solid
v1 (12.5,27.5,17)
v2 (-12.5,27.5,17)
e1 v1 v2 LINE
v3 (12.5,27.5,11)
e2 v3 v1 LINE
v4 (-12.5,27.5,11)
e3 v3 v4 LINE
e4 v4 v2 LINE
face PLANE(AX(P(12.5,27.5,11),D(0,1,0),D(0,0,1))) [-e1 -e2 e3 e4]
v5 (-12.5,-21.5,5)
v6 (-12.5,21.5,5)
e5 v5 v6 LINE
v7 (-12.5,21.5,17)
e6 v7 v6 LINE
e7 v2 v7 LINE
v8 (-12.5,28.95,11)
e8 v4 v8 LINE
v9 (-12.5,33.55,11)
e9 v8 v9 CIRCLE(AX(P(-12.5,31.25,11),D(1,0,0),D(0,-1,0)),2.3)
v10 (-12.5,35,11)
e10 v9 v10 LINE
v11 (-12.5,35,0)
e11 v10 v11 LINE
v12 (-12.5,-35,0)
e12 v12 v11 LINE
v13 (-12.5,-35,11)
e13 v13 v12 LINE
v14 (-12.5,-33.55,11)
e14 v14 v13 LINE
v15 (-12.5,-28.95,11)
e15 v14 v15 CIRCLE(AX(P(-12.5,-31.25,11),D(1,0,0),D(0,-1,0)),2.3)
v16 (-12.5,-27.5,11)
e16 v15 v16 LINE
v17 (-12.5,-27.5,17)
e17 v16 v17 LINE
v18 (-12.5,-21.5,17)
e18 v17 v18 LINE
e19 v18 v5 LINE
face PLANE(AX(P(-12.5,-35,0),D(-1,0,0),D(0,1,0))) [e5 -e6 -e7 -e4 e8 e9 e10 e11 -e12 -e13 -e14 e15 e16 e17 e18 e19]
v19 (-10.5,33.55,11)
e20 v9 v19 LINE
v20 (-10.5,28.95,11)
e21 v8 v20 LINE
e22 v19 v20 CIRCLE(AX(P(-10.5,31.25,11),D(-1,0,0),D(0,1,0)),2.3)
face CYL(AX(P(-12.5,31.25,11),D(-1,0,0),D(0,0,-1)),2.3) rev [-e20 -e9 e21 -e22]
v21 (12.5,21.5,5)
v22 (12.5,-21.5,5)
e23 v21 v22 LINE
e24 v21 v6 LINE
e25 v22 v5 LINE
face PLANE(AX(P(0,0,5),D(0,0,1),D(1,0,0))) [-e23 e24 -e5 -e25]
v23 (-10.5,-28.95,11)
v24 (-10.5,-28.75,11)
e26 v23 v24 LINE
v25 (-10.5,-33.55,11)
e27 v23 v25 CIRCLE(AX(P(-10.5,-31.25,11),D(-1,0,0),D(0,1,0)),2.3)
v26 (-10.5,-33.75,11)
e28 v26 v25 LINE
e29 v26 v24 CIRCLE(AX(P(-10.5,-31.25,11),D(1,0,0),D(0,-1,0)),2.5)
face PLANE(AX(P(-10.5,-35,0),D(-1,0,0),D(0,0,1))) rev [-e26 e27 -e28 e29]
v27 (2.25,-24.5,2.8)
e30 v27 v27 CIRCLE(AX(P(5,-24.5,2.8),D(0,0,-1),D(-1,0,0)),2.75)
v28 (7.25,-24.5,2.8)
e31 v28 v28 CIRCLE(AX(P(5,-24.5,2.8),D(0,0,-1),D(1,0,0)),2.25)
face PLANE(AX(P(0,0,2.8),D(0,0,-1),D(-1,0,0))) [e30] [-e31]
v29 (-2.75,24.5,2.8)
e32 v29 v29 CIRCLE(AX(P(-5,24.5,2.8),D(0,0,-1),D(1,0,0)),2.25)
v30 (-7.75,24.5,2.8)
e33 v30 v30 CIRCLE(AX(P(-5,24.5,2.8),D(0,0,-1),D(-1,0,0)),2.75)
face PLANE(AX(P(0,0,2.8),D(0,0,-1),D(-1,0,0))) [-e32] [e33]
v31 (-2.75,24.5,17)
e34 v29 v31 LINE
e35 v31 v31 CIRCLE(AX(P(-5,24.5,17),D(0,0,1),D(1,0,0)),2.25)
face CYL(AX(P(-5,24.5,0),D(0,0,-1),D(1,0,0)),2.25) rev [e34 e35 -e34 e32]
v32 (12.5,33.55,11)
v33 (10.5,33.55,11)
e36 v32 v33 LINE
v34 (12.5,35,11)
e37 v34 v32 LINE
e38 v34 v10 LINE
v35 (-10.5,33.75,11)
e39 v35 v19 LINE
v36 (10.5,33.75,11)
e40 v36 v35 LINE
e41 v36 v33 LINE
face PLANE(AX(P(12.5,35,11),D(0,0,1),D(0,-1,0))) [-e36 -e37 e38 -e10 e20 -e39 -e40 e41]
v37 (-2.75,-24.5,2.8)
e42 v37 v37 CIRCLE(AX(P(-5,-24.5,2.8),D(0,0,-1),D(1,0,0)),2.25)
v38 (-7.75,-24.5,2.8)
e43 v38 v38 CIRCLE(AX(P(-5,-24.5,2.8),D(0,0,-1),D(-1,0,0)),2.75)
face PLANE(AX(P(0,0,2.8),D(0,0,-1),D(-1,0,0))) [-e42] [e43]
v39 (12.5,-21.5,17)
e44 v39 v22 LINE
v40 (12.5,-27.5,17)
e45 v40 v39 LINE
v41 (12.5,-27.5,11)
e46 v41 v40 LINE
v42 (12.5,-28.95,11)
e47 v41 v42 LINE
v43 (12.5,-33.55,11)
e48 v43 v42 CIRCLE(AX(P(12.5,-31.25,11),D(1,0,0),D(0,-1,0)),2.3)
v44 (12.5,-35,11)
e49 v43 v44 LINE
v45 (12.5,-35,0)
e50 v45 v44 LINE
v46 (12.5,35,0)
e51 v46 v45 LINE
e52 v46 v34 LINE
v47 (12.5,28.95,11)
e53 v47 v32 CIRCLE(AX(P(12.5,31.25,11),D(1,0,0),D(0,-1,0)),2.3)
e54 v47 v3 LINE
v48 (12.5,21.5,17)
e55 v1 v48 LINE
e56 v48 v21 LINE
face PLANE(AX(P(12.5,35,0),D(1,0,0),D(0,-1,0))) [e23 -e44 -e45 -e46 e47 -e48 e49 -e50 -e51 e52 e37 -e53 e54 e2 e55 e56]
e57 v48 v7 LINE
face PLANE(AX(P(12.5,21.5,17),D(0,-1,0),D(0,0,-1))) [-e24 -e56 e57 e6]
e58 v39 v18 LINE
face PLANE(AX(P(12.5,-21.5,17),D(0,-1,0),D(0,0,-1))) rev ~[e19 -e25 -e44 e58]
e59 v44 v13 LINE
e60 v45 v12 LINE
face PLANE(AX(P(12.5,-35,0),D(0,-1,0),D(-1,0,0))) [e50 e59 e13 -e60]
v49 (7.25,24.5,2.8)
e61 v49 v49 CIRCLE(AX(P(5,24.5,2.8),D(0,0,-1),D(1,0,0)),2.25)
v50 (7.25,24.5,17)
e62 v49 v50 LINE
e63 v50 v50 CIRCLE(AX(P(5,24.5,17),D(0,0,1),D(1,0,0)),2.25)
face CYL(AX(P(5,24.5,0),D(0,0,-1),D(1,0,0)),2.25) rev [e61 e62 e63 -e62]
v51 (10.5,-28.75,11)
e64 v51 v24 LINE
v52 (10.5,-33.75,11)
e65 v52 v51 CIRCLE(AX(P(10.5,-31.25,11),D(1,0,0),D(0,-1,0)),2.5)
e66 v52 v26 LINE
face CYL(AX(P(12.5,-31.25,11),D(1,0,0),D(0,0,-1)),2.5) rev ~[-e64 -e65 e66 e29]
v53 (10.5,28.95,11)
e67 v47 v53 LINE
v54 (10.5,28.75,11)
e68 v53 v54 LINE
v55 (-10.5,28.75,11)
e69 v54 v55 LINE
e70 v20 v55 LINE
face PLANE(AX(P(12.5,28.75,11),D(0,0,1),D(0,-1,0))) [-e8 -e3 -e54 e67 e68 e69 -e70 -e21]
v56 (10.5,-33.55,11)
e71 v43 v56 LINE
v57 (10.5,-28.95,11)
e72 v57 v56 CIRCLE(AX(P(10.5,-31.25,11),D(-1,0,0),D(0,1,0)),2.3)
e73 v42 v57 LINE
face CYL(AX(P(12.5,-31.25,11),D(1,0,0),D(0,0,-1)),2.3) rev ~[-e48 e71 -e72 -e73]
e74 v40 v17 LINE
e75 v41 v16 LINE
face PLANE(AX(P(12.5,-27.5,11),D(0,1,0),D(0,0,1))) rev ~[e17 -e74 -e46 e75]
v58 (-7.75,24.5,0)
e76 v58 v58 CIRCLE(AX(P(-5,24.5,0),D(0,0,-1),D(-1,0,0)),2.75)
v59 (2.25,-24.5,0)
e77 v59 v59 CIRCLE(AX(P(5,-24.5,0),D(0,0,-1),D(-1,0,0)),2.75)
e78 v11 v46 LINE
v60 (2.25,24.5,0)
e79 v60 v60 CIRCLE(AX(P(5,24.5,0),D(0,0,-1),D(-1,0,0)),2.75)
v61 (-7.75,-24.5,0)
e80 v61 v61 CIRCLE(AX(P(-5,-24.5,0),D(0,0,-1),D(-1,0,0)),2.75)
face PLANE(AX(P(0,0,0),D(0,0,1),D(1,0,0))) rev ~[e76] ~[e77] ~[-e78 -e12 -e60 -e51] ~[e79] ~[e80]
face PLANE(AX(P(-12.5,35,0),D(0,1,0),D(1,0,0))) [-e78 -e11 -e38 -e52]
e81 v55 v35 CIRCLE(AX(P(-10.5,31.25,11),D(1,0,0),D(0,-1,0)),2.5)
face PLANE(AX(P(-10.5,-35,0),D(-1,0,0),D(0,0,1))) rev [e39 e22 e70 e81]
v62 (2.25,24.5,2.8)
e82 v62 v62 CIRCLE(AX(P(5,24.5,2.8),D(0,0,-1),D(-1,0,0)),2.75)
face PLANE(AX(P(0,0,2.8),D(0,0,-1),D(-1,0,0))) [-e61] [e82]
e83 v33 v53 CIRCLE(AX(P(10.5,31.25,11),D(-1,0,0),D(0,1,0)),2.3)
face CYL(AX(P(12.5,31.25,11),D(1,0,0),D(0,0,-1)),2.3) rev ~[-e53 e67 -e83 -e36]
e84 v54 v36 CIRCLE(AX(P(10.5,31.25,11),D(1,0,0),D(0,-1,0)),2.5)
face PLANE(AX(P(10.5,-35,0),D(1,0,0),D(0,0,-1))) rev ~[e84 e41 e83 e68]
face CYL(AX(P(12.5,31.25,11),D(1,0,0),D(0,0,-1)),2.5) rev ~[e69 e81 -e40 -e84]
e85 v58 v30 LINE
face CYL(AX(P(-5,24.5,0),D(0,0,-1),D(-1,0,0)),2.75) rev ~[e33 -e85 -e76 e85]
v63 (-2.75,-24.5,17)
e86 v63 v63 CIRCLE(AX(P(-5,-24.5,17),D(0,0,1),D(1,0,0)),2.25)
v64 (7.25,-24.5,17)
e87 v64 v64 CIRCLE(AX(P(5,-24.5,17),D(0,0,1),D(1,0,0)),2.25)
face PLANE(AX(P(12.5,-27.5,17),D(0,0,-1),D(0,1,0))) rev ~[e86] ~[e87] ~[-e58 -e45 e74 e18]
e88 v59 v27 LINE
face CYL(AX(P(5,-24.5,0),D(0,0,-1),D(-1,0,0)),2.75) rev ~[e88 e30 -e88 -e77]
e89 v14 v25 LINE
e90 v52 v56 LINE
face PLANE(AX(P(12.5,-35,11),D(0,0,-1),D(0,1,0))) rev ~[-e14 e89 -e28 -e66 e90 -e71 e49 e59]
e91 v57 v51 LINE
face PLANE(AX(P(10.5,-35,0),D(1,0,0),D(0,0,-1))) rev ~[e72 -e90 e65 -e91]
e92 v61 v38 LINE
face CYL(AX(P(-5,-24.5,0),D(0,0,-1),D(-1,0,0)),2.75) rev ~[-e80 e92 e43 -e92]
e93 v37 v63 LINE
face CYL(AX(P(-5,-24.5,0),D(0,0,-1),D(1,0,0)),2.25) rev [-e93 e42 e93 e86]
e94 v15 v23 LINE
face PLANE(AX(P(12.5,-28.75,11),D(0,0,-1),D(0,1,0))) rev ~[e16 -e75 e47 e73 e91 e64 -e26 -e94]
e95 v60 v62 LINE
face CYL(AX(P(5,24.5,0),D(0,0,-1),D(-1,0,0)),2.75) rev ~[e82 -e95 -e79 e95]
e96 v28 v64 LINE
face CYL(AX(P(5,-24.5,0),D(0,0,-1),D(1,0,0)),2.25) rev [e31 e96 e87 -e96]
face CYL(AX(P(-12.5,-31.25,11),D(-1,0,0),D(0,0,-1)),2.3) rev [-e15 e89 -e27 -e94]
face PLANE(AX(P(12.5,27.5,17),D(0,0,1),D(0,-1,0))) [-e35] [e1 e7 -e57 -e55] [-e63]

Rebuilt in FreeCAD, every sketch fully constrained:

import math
import FreeCAD as App
import Part
import Sketcher

V = App.Vector


def add_polygon(sketch, points):
    """Adds a closed chain of lines whose ends are joined by coincident constraints."""
    first, n = sketch.GeometryCount, len(points)
    for a, b in zip(points, points[1:] + points[:1]):
        sketch.addGeometry(Part.LineSegment(App.Vector(*a, 0), App.Vector(*b, 0)), False)
    for i in range(n):
        sketch.addConstraint(Sketcher.Constraint("Coincident", first + i, 2, first + (i + 1) % n, 1))

doc = App.newDocument("Part")
body = doc.addObject("PartDesign::Body", "Body")

# Sketch on XY plane
sketch1 = doc.addObject("Sketcher::SketchObject", "Sketch")
body.addObject(sketch1)
sketch1.AttachmentSupport = (doc.XY_Plane, [""])
sketch1.MapMode = "FlatFace"
add_polygon(sketch1, [(-12.5, -35), (12.5, -35), (12.5, 35), (-12.5, 35)])  # lines 0-3
sketch1.addGeometry(Part.Circle(V(-5, -24.5, 0), V(0, 0, 1), 2.25), False)  # 4
sketch1.addGeometry(Part.Circle(V(5, -24.5, 0), V(0, 0, 1), 2.25), False)  # 5
sketch1.addGeometry(Part.Circle(V(-5, 24.5, 0), V(0, 0, 1), 2.25), False)  # 6
sketch1.addGeometry(Part.Circle(V(5, 24.5, 0), V(0, 0, 1), 2.25), False)  # 7
sketch1.addConstraint(Sketcher.Constraint("Horizontal", 0))
sketch1.addConstraint(Sketcher.Constraint("Vertical", 1))
sketch1.addConstraint(Sketcher.Constraint("Horizontal", 2))
sketch1.addConstraint(Sketcher.Constraint("Vertical", 3))
sketch1.addConstraint(Sketcher.Constraint("Equal", 4, 5))
sketch1.addConstraint(Sketcher.Constraint("Equal", 5, 6))
sketch1.addConstraint(Sketcher.Constraint("Equal", 6, 7))
sketch1.addConstraint(Sketcher.Constraint("Symmetric", 5, 3, 6, 3, -1, 1))
sketch1.addConstraint(Sketcher.Constraint("Symmetric", 4, 3, 7, 3, -1, 1))
sketch1.addConstraint(Sketcher.Constraint("Symmetric", 0, 2, 2, 2, -1, 1))
sketch1.addConstraint(Sketcher.Constraint("Symmetric", 4, 3, 5, 3, -2))
sketch1.addConstraint(Sketcher.Constraint("Diameter", 4, 4.5))
sketch1.addConstraint(Sketcher.Constraint("DistanceX", 0, 1, 0, 2, 25.0))
sketch1.addConstraint(Sketcher.Constraint("DistanceY", 1, 1, 1, 2, 70.0))
sketch1.addConstraint(Sketcher.Constraint("DistanceX", 4, 3, 5, 3, 10.0))
sketch1.addConstraint(Sketcher.Constraint("DistanceY", 4, 3, 6, 3, 49.0))
pad1 = doc.addObject("PartDesign::Pad", "Pad")
body.addObject(pad1)
pad1.Profile = sketch1
pad1.Length = 5

# Sketch on YZ plane
sketch2 = doc.addObject("Sketcher::SketchObject", "Sketch001")
body.addObject(sketch2)
sketch2.AttachmentSupport = (doc.YZ_Plane, [""])
sketch2.MapMode = "FlatFace"
sketch2.AttachmentOffset = App.Placement(V(0, 0, 12.5), App.Rotation())
sketch2.addGeometry(Part.LineSegment(V(35, 5, 0), V(35, 11, 0)), False)
sketch2.addGeometry(Part.LineSegment(V(35, 11, 0), V(33.75, 11, 0)), False)
sketch2.addGeometry(Part.ArcOfCircle(Part.Circle(V(31.25, 11, 0), V(0, 0, 1), 2.5), math.radians(180), math.radians(360)), False)
sketch2.addGeometry(Part.LineSegment(V(28.75, 11, 0), V(27.5, 11, 0)), False)
sketch2.addGeometry(Part.LineSegment(V(27.5, 11, 0), V(27.5, 17, 0)), False)
sketch2.addGeometry(Part.LineSegment(V(27.5, 17, 0), V(21.5, 17, 0)), False)
sketch2.addGeometry(Part.LineSegment(V(21.5, 17, 0), V(21.5, 5, 0)), False)
sketch2.addGeometry(Part.LineSegment(V(21.5, 5, 0), V(35, 5, 0)), False)
sketch2.addGeometry(Part.LineSegment(V(-35, 11, 0), V(-35, 5, 0)), False)
sketch2.addGeometry(Part.LineSegment(V(-35, 5, 0), V(-21.5, 5, 0)), False)
sketch2.addGeometry(Part.LineSegment(V(-21.5, 5, 0), V(-21.5, 17, 0)), False)
sketch2.addGeometry(Part.LineSegment(V(-21.5, 17, 0), V(-27.5, 17, 0)), False)
sketch2.addGeometry(Part.LineSegment(V(-27.5, 17, 0), V(-27.5, 11, 0)), False)
sketch2.addGeometry(Part.LineSegment(V(-27.5, 11, 0), V(-28.75, 11, 0)), False)
sketch2.addGeometry(Part.ArcOfCircle(Part.Circle(V(-31.25, 11, 0), V(0, 0, 1), 2.5), math.radians(180), math.radians(360)), False)
sketch2.addGeometry(Part.LineSegment(V(-33.75, 11, 0), V(-35, 11, 0)), False)
sketch2.addConstraint(Sketcher.Constraint("Coincident", 0, 2, 1, 1))
sketch2.addConstraint(Sketcher.Constraint("Coincident", 1, 2, 2, 2))
sketch2.addConstraint(Sketcher.Constraint("Coincident", 2, 1, 3, 1))
sketch2.addConstraint(Sketcher.Constraint("Coincident", 3, 2, 4, 1))
sketch2.addConstraint(Sketcher.Constraint("Coincident", 4, 2, 5, 1))
sketch2.addConstraint(Sketcher.Constraint("Coincident", 5, 2, 6, 1))
sketch2.addConstraint(Sketcher.Constraint("Coincident", 6, 2, 7, 1))
sketch2.addConstraint(Sketcher.Constraint("Coincident", 7, 2, 0, 1))
sketch2.addConstraint(Sketcher.Constraint("Coincident", 8, 2, 9, 1))
sketch2.addConstraint(Sketcher.Constraint("Coincident", 9, 2, 10, 1))
sketch2.addConstraint(Sketcher.Constraint("Coincident", 10, 2, 11, 1))
sketch2.addConstraint(Sketcher.Constraint("Coincident", 11, 2, 12, 1))
sketch2.addConstraint(Sketcher.Constraint("Coincident", 12, 2, 13, 1))
sketch2.addConstraint(Sketcher.Constraint("Coincident", 13, 2, 14, 2))
sketch2.addConstraint(Sketcher.Constraint("Coincident", 14, 1, 15, 1))
sketch2.addConstraint(Sketcher.Constraint("Coincident", 15, 2, 8, 1))
sketch2.addConstraint(Sketcher.Constraint("Vertical", 0))
sketch2.addConstraint(Sketcher.Constraint("Horizontal", 1))
sketch2.addConstraint(Sketcher.Constraint("Horizontal", 3))
sketch2.addConstraint(Sketcher.Constraint("Vertical", 4))
sketch2.addConstraint(Sketcher.Constraint("Horizontal", 5))
sketch2.addConstraint(Sketcher.Constraint("Vertical", 6))
sketch2.addConstraint(Sketcher.Constraint("Horizontal", 7))
sketch2.addConstraint(Sketcher.Constraint("Vertical", 8))
sketch2.addConstraint(Sketcher.Constraint("Horizontal", 9))
sketch2.addConstraint(Sketcher.Constraint("Vertical", 10))
sketch2.addConstraint(Sketcher.Constraint("Horizontal", 11))
sketch2.addConstraint(Sketcher.Constraint("Vertical", 12))
sketch2.addConstraint(Sketcher.Constraint("Horizontal", 13))
sketch2.addConstraint(Sketcher.Constraint("Horizontal", 15))
sketch2.addConstraint(Sketcher.Constraint("Equal", 2, 14))
sketch2.addConstraint(Sketcher.Constraint("Symmetric", 2, 3, 14, 3, -2))
sketch2.addConstraint(Sketcher.Constraint("Symmetric", 7, 2, 8, 2, -2))
sketch2.addConstraint(Sketcher.Constraint("Symmetric", 5, 2, 10, 2, -2))
sketch2.addConstraint(Sketcher.Constraint("Symmetric", 3, 2, 12, 2, -2))
sketch2.addConstraint(Sketcher.Constraint("Horizontal", 14, 3, 0, 2))
sketch2.addConstraint(Sketcher.Constraint("Horizontal", 1, 2, 2, 1))
sketch2.addConstraint(Sketcher.Constraint("Horizontal", 13, 2, 14, 1))
sketch2.addConstraint(Sketcher.Constraint("Equal", 1, 3))
sketch2.addConstraint(Sketcher.Constraint("Equal", 11, 0))
sketch2.addConstraint(Sketcher.Constraint("Equal", 0, 4))
sketch2.addConstraint(Sketcher.Constraint("Radius", 2, 2.5))
sketch2.addConstraint(Sketcher.Constraint("DistanceX", 5, 2, 5, 1, 6.0))
sketch2.addConstraint(Sketcher.Constraint("DistanceY", -1, 1, 6, 2, 5.0))
sketch2.addConstraint(Sketcher.Constraint("DistanceX", 3, 2, 0, 2, 7.5))
sketch2.addConstraint(Sketcher.Constraint("DistanceX", -1, 1, 0, 2, 35.0))
pad2 = doc.addObject("PartDesign::Pad", "Pad001")
body.addObject(pad2)
pad2.Profile = sketch2
pad2.Length = 25
pad2.Reversed = True

# Sketch on XY plane
sketch3 = doc.addObject("Sketcher::SketchObject", "Sketch002")
body.addObject(sketch3)
sketch3.AttachmentSupport = (doc.XY_Plane, [""])
sketch3.MapMode = "FlatFace"
sketch3.addGeometry(Part.Circle(V(-5, 24.5, 0), V(0, 0, 1), 2.25), False)
sketch3.addGeometry(Part.Circle(V(5, 24.5, 0), V(0, 0, 1), 2.25), False)
sketch3.addGeometry(Part.Circle(V(5, -24.5, 0), V(0, 0, 1), 2.25), False)
sketch3.addGeometry(Part.Circle(V(-5, -24.5, 0), V(0, 0, 1), 2.25), False)
sketch3.addConstraint(Sketcher.Constraint("Equal", 0, 1))
sketch3.addConstraint(Sketcher.Constraint("Equal", 1, 2))
sketch3.addConstraint(Sketcher.Constraint("Equal", 2, 3))
sketch3.addConstraint(Sketcher.Constraint("Symmetric", 0, 3, 2, 3, -1, 1))
sketch3.addConstraint(Sketcher.Constraint("Symmetric", 1, 3, 3, 3, -1, 1))
sketch3.addConstraint(Sketcher.Constraint("Symmetric", 0, 3, 1, 3, -2))
sketch3.addConstraint(Sketcher.Constraint("Diameter", 0, 4.5))
sketch3.addConstraint(Sketcher.Constraint("DistanceX", 0, 3, 1, 3, 10.0))
sketch3.addConstraint(Sketcher.Constraint("DistanceY", 2, 3, 1, 3, 49.0))
pocket1 = doc.addObject("PartDesign::Pocket", "Pocket")
body.addObject(pocket1)
pocket1.Profile = sketch3
pocket1.Length = 17
pocket1.Reversed = True

# Sketch on YZ plane
sketch4 = doc.addObject("Sketcher::SketchObject", "Sketch003")
body.addObject(sketch4)
sketch4.AttachmentSupport = (doc.YZ_Plane, [""])
sketch4.MapMode = "FlatFace"
sketch4.AttachmentOffset = App.Placement(V(0, 0, 12.5), App.Rotation())
sketch4.addGeometry(Part.ArcOfCircle(Part.Circle(V(31.25, 11, 0), V(0, 0, 1), 2.5), math.radians(180), math.radians(360)), False)
sketch4.addGeometry(Part.LineSegment(V(33.75, 11, 0), V(33.55, 11, 0)), False)
sketch4.addGeometry(Part.ArcOfCircle(Part.Circle(V(31.25, 11, 0), V(0, 0, 1), 2.3), math.radians(180), math.radians(360)), False)
sketch4.addGeometry(Part.LineSegment(V(28.95, 11, 0), V(28.75, 11, 0)), False)
sketch4.addGeometry(Part.LineSegment(V(-33.55, 11, 0), V(-33.75, 11, 0)), False)
sketch4.addGeometry(Part.ArcOfCircle(Part.Circle(V(-31.25, 11, 0), V(0, 0, 1), 2.5), math.radians(180), math.radians(360)), False)
sketch4.addGeometry(Part.LineSegment(V(-28.75, 11, 0), V(-28.95, 11, 0)), False)
sketch4.addGeometry(Part.ArcOfCircle(Part.Circle(V(-31.25, 11, 0), V(0, 0, 1), 2.3), math.radians(180), math.radians(360)), False)
sketch4.addConstraint(Sketcher.Constraint("Coincident", 0, 2, 1, 1))
sketch4.addConstraint(Sketcher.Constraint("Coincident", 1, 2, 2, 2))
sketch4.addConstraint(Sketcher.Constraint("Coincident", 2, 1, 3, 1))
sketch4.addConstraint(Sketcher.Constraint("Coincident", 3, 2, 0, 1))
sketch4.addConstraint(Sketcher.Constraint("Coincident", 4, 2, 5, 1))
sketch4.addConstraint(Sketcher.Constraint("Coincident", 5, 2, 6, 1))
sketch4.addConstraint(Sketcher.Constraint("Coincident", 6, 2, 7, 2))
sketch4.addConstraint(Sketcher.Constraint("Coincident", 7, 1, 4, 1))
sketch4.addConstraint(Sketcher.Constraint("Horizontal", 1))
sketch4.addConstraint(Sketcher.Constraint("Horizontal", 3))
sketch4.addConstraint(Sketcher.Constraint("Horizontal", 4))
sketch4.addConstraint(Sketcher.Constraint("Horizontal", 6))
sketch4.addConstraint(Sketcher.Constraint("Coincident", 2, 3, 0, 3))
sketch4.addConstraint(Sketcher.Constraint("Coincident", 7, 3, 5, 3))
sketch4.addConstraint(Sketcher.Constraint("Equal", 0, 5))
sketch4.addConstraint(Sketcher.Constraint("Equal", 2, 7))
sketch4.addConstraint(Sketcher.Constraint("Symmetric", 0, 3, 5, 3, -2))
sketch4.addConstraint(Sketcher.Constraint("Horizontal", 7, 3, 0, 2))
sketch4.addConstraint(Sketcher.Constraint("Horizontal", 1, 2, 2, 1))
sketch4.addConstraint(Sketcher.Constraint("Horizontal", 3, 2, 4, 2))
sketch4.addConstraint(Sketcher.Constraint("Horizontal", 4, 2, 5, 2))
sketch4.addConstraint(Sketcher.Constraint("Radius", 0, 2.5))
sketch4.addConstraint(Sketcher.Constraint("DistanceX", 1, 2, 1, 1, 0.2))
sketch4.addConstraint(Sketcher.Constraint("DistanceY", -1, 1, 0, 3, 11.0))
sketch4.addConstraint(Sketcher.Constraint("DistanceX", 5, 3, 0, 2, 65.0))
pad3 = doc.addObject("PartDesign::Pad", "Pad002")
body.addObject(pad3)
pad3.Profile = sketch4
pad3.Length = 2
pad3.Reversed = True
doc.recompute()

mirrored = doc.addObject("PartDesign::Mirrored", "Mirrored")
body.addObject(mirrored)
mirrored.Originals = [pad3]
mirrored.MirrorPlane = (doc.YZ_Plane, [""])
body.Tip = mirrored

# Sketch on XY plane
sketch5 = doc.addObject("Sketcher::SketchObject", "Sketch004")
body.addObject(sketch5)
sketch5.AttachmentSupport = (doc.XY_Plane, [""])
sketch5.MapMode = "FlatFace"
sketch5.addGeometry(Part.Circle(V(5, 24.5, 0), V(0, 0, 1), 2.75), False)
sketch5.addGeometry(Part.Circle(V(5, 24.5, 0), V(0, 0, 1), 2.25), False)
sketch5.addGeometry(Part.Circle(V(5, -24.5, 0), V(0, 0, 1), 2.75), False)
sketch5.addGeometry(Part.Circle(V(5, -24.5, 0), V(0, 0, 1), 2.25), False)
sketch5.addGeometry(Part.Circle(V(-5, 24.5, 0), V(0, 0, 1), 2.75), False)
sketch5.addGeometry(Part.Circle(V(-5, 24.5, 0), V(0, 0, 1), 2.25), False)
sketch5.addGeometry(Part.Circle(V(-5, -24.5, 0), V(0, 0, 1), 2.75), False)
sketch5.addGeometry(Part.Circle(V(-5, -24.5, 0), V(0, 0, 1), 2.25), False)
sketch5.addConstraint(Sketcher.Constraint("Coincident", 1, 3, 0, 3))
sketch5.addConstraint(Sketcher.Constraint("Coincident", 3, 3, 2, 3))
sketch5.addConstraint(Sketcher.Constraint("Coincident", 5, 3, 4, 3))
sketch5.addConstraint(Sketcher.Constraint("Coincident", 7, 3, 6, 3))
sketch5.addConstraint(Sketcher.Constraint("Equal", 0, 2))
sketch5.addConstraint(Sketcher.Constraint("Equal", 1, 3))
sketch5.addConstraint(Sketcher.Constraint("Equal", 2, 4))
sketch5.addConstraint(Sketcher.Constraint("Equal", 3, 5))
sketch5.addConstraint(Sketcher.Constraint("Equal", 4, 6))
sketch5.addConstraint(Sketcher.Constraint("Equal", 5, 7))
sketch5.addConstraint(Sketcher.Constraint("Symmetric", 2, 3, 4, 3, -1, 1))
sketch5.addConstraint(Sketcher.Constraint("Symmetric", 0, 3, 6, 3, -1, 1))
sketch5.addConstraint(Sketcher.Constraint("Symmetric", 0, 3, 4, 3, -2))
sketch5.addConstraint(Sketcher.Constraint("Diameter", 0, 5.5))
sketch5.addConstraint(Sketcher.Constraint("DistanceY", 2, 3, 0, 3, 49.0))
sketch5.addConstraint(Sketcher.Constraint("DistanceX", 4, 3, 0, 3, 10.0))
sketch5.addConstraint(Sketcher.Constraint("Diameter", 1, 4.5))
pocket2 = doc.addObject("PartDesign::Pocket", "Pocket001")
body.addObject(pocket2)
pocket2.Profile = sketch5
pocket2.Length = 2.8
pocket2.Reversed = True

doc.recompute()
